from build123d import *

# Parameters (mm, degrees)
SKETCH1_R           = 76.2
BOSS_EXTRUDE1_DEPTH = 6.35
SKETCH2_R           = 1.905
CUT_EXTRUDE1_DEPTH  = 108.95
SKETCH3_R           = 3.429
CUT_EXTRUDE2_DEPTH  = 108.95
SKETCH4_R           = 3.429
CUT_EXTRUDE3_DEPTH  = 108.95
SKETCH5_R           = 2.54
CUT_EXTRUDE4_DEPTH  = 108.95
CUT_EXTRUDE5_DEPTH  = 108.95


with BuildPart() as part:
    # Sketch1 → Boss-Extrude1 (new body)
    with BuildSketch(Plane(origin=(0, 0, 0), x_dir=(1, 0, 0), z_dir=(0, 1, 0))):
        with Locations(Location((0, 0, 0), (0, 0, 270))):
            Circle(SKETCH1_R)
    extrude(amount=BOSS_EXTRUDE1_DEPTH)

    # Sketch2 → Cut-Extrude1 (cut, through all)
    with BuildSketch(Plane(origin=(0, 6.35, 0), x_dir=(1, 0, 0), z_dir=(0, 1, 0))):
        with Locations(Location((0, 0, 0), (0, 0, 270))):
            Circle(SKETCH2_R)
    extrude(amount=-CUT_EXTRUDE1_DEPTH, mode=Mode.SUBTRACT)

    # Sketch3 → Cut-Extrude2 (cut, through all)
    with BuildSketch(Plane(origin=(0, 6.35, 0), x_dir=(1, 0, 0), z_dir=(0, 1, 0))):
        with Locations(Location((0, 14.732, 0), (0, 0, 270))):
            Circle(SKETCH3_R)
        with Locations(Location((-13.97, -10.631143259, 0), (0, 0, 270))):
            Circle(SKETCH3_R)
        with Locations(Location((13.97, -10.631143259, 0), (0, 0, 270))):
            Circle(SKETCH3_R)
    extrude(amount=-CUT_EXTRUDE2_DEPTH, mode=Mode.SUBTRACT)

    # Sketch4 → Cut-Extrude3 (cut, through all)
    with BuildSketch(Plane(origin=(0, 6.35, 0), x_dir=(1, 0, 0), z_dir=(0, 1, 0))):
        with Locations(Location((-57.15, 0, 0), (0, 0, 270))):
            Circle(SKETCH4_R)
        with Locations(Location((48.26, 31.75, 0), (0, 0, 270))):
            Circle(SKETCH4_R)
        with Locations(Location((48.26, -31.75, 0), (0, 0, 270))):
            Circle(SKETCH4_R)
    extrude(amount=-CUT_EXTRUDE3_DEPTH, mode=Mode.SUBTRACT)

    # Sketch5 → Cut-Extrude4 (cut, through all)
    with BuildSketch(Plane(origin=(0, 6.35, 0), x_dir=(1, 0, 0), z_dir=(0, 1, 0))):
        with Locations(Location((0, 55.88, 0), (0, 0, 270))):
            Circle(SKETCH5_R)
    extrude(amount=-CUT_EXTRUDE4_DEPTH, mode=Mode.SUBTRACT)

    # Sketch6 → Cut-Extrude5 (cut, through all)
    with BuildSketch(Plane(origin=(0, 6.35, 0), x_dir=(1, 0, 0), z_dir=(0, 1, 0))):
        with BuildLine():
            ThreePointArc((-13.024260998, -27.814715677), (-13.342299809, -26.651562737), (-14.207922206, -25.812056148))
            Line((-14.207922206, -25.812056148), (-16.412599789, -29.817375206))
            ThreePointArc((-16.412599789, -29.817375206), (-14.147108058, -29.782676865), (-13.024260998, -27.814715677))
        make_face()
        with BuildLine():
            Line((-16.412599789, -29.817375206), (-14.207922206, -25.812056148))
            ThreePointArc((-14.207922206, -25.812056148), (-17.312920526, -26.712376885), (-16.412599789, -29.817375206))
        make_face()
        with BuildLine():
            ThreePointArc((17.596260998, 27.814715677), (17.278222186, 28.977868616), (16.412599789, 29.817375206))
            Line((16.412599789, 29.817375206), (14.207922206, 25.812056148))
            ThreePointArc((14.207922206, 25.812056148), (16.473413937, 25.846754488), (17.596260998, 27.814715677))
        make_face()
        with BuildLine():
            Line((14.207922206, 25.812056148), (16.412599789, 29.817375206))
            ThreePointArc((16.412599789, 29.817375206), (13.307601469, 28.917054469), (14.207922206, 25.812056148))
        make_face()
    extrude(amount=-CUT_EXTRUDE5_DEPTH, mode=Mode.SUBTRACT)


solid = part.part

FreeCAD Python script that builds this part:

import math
import FreeCAD as App
import Part
import Sketcher

V = App.Vector
Q = App.Units.Quantity

doc = App.newDocument("Part")
body = doc.addObject("PartDesign::Body", "Body")

# Sketch on XZ plane
sketch1 = doc.addObject("Sketcher::SketchObject", "Sketch")
body.addObject(sketch1)
sketch1.AttachmentSupport = (doc.XZ_Plane, [""])
sketch1.MapMode = "FlatFace"
sketch1.addGeometry(Part.Circle(V(0, 0, 0), V(0, 0, 1), 76), False)
sketch1.addConstraint([
    Sketcher.Constraint("Coincident", 0, 3, -1, 1),
    Sketcher.Constraint("Diameter", 0, Q("6 in")),
])
pad1 = doc.addObject("PartDesign::Pad", "Pad")
body.addObject(pad1)
pad1.Profile = sketch1
pad1.Length = Q("0.25 in")
pad1.Reversed = True

# Sketch on XZ plane
sketch2 = doc.addObject("Sketcher::SketchObject", "Sketch001")
body.addObject(sketch2)
sketch2.AttachmentSupport = (doc.XZ_Plane, [""])
sketch2.MapMode = "FlatFace"
sketch2.AttachmentOffset = App.Placement(V(0, 0, -0.25 * 25.4), App.Rotation())
sketch2.addGeometry(Part.Circle(V(0, 0, 0), V(0, 0, 1), 1.9), False)
sketch2.addConstraint([
    Sketcher.Constraint("Coincident", 0, 3, -1, 1),
    Sketcher.Constraint("Diameter", 0, Q("0.15 in")),
])
pocket1 = doc.addObject("PartDesign::Pocket", "Pocket")
body.addObject(pocket1)
pocket1.Profile = sketch2
pocket1.Type = "ThroughAll"
pocket1.Reversed = True

# Sketch on XZ plane
sketch3 = doc.addObject("Sketcher::SketchObject", "Sketch002")
body.addObject(sketch3)
sketch3.AttachmentSupport = (doc.XZ_Plane, [""])
sketch3.MapMode = "FlatFace"
sketch3.AttachmentOffset = App.Placement(V(0, 0, -0.25 * 25.4), App.Rotation())
sketch3.addGeometry([
    Part.Circle(V(0, -14.7, 0), V(0, 0, 1), 3.4),
    Part.Circle(V(-14, 10.6, 0), V(0, 0, 1), 3.4),
    Part.Circle(V(14, 10.6, 0), V(0, 0, 1), 3.4),
], False)
sketch3.addConstraint([
    Sketcher.Constraint("Equal", 0, 1),
    Sketcher.Constraint("Equal", 1, 2),
    Sketcher.Constraint("Symmetric", 1, 3, 2, 3, -2),
    Sketcher.Constraint("PointOnObject", 0, 3, -2),
    Sketcher.Constraint("Diameter", 0, Q("0.27 in")),
    Sketcher.Constraint("DistanceX", 1, 3, 2, 3, Q("1.1 in")),
    Sketcher.Constraint("DistanceY", 0, 3, -1, 1, Q("0.58 in")),
    Sketcher.Constraint("DistanceY", -1, 1, 1, 3, 10.631143),
])
pocket2 = doc.addObject("PartDesign::Pocket", "Pocket001")
body.addObject(pocket2)
pocket2.Profile = sketch3
pocket2.Type = "ThroughAll"
pocket2.Reversed = True

# Sketch on XZ plane
sketch4 = doc.addObject("Sketcher::SketchObject", "Sketch003")
body.addObject(sketch4)
sketch4.AttachmentSupport = (doc.XZ_Plane, [""])
sketch4.MapMode = "FlatFace"
sketch4.AttachmentOffset = App.Placement(V(0, 0, -0.25 * 25.4), App.Rotation())
sketch4.addGeometry([
    Part.Circle(V(-57.1, 0, 0), V(0, 0, 1), 3.4),
    Part.Circle(V(48.3, -31.8, 0), V(0, 0, 1), 3.4),
    Part.Circle(V(48.3, 31.8, 0), V(0, 0, 1), 3.4),
], False)
sketch4.addConstraint([
    Sketcher.Constraint("Equal", 0, 1),
    Sketcher.Constraint("Equal", 1, 2),
    Sketcher.Constraint("Symmetric", 1, 3, 2, 3, -1),
    Sketcher.Constraint("PointOnObject", 0, 3, -1),
    Sketcher.Constraint("Diameter", 0, Q("0.27 in")),
    Sketcher.Constraint("DistanceX", -1, 1, 1, 3, Q("1.9 in")),
    Sketcher.Constraint("DistanceY", 1, 3, 2, 3, Q("2.5 in")),
    Sketcher.Constraint("DistanceX", 0, 3, -1, 1, Q("2.25 in")),
])
pocket3 = doc.addObject("PartDesign::Pocket", "Pocket002")
body.addObject(pocket3)
pocket3.Profile = sketch4
pocket3.Type = "ThroughAll"
pocket3.Reversed = True

# Sketch on XZ plane
sketch5 = doc.addObject("Sketcher::SketchObject", "Sketch004")
body.addObject(sketch5)
sketch5.AttachmentSupport = (doc.XZ_Plane, [""])
sketch5.MapMode = "FlatFace"
sketch5.AttachmentOffset = App.Placement(V(0, 0, -0.25 * 25.4), App.Rotation())
sketch5.addGeometry(Part.Circle(V(0, -55.9, 0), V(0, 0, 1), 2.5), False)
sketch5.addConstraint([
    Sketcher.Constraint("PointOnObject", 0, 3, -2),
    Sketcher.Constraint("Diameter", 0, Q("0.2 in")),
    Sketcher.Constraint("DistanceY", 0, 3, -1, 1, Q("2.2 in")),
])
pocket4 = doc.addObject("PartDesign::Pocket", "Pocket003")
body.addObject(pocket4)
pocket4.Profile = sketch5
pocket4.Type = "ThroughAll"
pocket4.Reversed = True

# Sketch on XZ plane
sketch6 = doc.addObject("Sketcher::SketchObject", "Sketch005")
body.addObject(sketch6)
sketch6.AttachmentSupport = (doc.XZ_Plane, [""])
sketch6.MapMode = "FlatFace"
sketch6.AttachmentOffset = App.Placement(V(0, 0, -0.25 * 25.4), App.Rotation())
sketch6.addGeometry([
    Part.ArcOfCircle(Part.Circle(V(-15.3, 27.8, 0), V(0, 0, 1), 2.3), math.radians(-61), math.radians(0)),  # 0
    Part.ArcOfCircle(Part.Circle(V(-15.3, 27.8, 0), V(0, 0, 1), 2.3), math.radians(119), math.radians(299)),  # 1
    Part.ArcOfCircle(Part.Circle(V(-15.3, 27.8, 0), V(0, 0, 1), 2.3), math.radians(0), math.radians(119)),  # 2
    Part.ArcOfCircle(Part.Circle(V(15.3, -27.8, 0), V(0, 0, 1), 2.3), math.radians(-61), math.radians(0)),  # 3
    Part.ArcOfCircle(Part.Circle(V(15.3, -27.8, 0), V(0, 0, 1), 2.3), math.radians(119), math.radians(299)),  # 4
    Part.ArcOfCircle(Part.Circle(V(15.3, -27.8, 0), V(0, 0, 1), 2.3), math.radians(0), math.radians(119)),  # 5
], False)
sketch6.addConstraint([
    Sketcher.Constraint("Tangent", 0, 1, 1, 2),
    Sketcher.Constraint("Tangent", 1, 1, 2, 2),
    Sketcher.Constraint("Tangent", 2, 1, 0, 2),
    Sketcher.Constraint("Tangent", 3, 1, 4, 2),
    Sketcher.Constraint("Tangent", 4, 1, 5, 2),
    Sketcher.Constraint("Tangent", 5, 1, 3, 2),
    Sketcher.Constraint("Equal", 2, 3),
    Sketcher.Constraint("Symmetric", 0, 3, 3, 3, -1, 1),
    Sketcher.Constraint("Horizontal", 1, 3, 2, 1),
    Sketcher.Constraint("Horizontal", 4, 3, 5, 1),
    Sketcher.Constraint("Radius", 0, Q("0.09 in")),
    Sketcher.Constraint("DistanceX", 1, 1, -1, 1, 16.4126),
    Sketcher.Constraint("DistanceX", -1, 1, 3, 1, 16.4126),
    Sketcher.Constraint("DistanceX", 0, 3, -1, 1, 15.310261),
    Sketcher.Constraint("DistanceY", 3, 3, 0, 3, 55.629431),
    Sketcher.Constraint("DistanceX", 0, 3, 0, 1, 1.102339),
    Sketcher.Constraint("DistanceX", 4, 1, 3, 3, 1.102339),
])
pocket5 = doc.addObject("PartDesign::Pocket", "Pocket004")
body.addObject(pocket5)
pocket5.Profile = sketch6
pocket5.Type = "ThroughAll"
pocket5.Reversed = True

doc.recompute()
